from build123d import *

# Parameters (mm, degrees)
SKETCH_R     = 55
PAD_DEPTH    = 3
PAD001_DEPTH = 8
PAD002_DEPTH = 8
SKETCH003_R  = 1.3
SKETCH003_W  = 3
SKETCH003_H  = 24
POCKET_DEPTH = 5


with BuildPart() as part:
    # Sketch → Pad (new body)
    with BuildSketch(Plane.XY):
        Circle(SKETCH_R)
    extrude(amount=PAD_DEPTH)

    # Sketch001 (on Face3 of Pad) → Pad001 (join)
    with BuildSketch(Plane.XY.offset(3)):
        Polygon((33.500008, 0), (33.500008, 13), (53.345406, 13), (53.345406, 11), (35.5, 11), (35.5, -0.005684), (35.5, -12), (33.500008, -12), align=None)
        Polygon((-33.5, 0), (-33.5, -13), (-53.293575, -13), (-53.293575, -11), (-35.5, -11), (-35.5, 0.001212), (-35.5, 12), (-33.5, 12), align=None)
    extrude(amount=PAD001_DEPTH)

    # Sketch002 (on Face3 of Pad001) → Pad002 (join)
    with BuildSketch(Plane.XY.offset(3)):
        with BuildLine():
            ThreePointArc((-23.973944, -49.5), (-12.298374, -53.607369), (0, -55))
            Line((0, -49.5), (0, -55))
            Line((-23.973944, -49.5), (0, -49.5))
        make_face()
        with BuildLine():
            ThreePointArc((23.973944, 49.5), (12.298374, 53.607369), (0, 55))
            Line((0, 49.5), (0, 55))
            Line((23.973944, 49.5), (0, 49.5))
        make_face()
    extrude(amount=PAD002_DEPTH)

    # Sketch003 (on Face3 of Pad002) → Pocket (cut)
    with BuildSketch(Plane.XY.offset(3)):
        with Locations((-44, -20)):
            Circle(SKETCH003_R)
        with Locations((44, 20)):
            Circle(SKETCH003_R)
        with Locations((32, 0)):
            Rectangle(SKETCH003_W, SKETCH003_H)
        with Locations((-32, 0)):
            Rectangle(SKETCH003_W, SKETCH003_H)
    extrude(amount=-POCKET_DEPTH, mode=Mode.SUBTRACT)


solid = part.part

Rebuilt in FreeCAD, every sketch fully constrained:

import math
import FreeCAD as App
import Part
import Sketcher


def add_polygon(sketch, points):
    """Adds a closed chain of lines whose ends are joined by coincident constraints."""
    first, n = sketch.GeometryCount, len(points)
    for a, b in zip(points, points[1:] + points[:1]):
        sketch.addGeometry(Part.LineSegment(App.Vector(*a, 0), App.Vector(*b, 0)), False)
    for i in range(n):
        sketch.addConstraint(Sketcher.Constraint("Coincident", first + i, 2, first + (i + 1) % n, 1))

doc = App.newDocument("Part")
body = doc.addObject("PartDesign::Body", "Body")

sketch1 = doc.addObject("Sketcher::SketchObject", "Sketch")
body.addObject(sketch1)
sketch1.AttachmentSupport = (doc.XY_Plane, [""])
sketch1.MapMode = "FlatFace"
sketch1.addGeometry(Part.Circle(App.Vector(0, 0, 0), App.Vector(0, 0, 1), 55), False)
sketch1.addConstraint([
    Sketcher.Constraint("Coincident", 0, 3, -1, 1),
    Sketcher.Constraint("Diameter", 0, 110.0),
])
pad1 = doc.addObject("PartDesign::Pad", "Pad")
body.addObject(pad1)
pad1.Profile = sketch1
pad1.Length = 3

sketch2 = doc.addObject("Sketcher::SketchObject", "Sketch001")
body.addObject(sketch2)
sketch2.AttachmentSupport = (doc.XY_Plane, [""])
sketch2.MapMode = "FlatFace"
sketch2.AttachmentOffset = App.Placement(App.Vector(0, 0, 3), App.Rotation())
add_polygon(sketch2, [(33.500008, 13), (33.500008, -12), (35.5, -12), (35.5, 11), (53.345406, 11), (53.345406, 13)])
add_polygon(sketch2, [(-33.5, -13), (-33.5, 12), (-35.5, 12), (-35.5, -11), (-53.293575, -11), (-53.293575, -13)])
sketch2.addConstraint([
    Sketcher.Constraint("Vertical", 0),
    Sketcher.Constraint("Horizontal", 1),
    Sketcher.Constraint("Vertical", 2),
    Sketcher.Constraint("Horizontal", 3),
    Sketcher.Constraint("Vertical", 4),
    Sketcher.Constraint("Horizontal", 5),
    Sketcher.Constraint("Vertical", 6),
    Sketcher.Constraint("Horizontal", 7),
    Sketcher.Constraint("Vertical", 8),
    Sketcher.Constraint("Horizontal", 9),
    Sketcher.Constraint("Vertical", 10),
    Sketcher.Constraint("Horizontal", 11),
    Sketcher.Constraint("Symmetric", 0, 2, 6, 2, -1, 1),
    Sketcher.Constraint("Symmetric", 2, 2, 8, 2, -1, 1),
    Sketcher.Constraint("Equal", 7, 4),
    Sketcher.Constraint("Equal", 0, 6),
    Sketcher.Constraint("DistanceX", 7, 2, 7, 1, 2.0),
    Sketcher.Constraint("DistanceY", 0, 2, 0, 1, 25.0),
    Sketcher.Constraint("DistanceY", 0, 2, -1, 1, 12.0),
    Sketcher.Constraint("DistanceX", 6, 2, 2, 2, 69.0),
    Sketcher.Constraint("DistanceX", 3, 1, 3, 2, 17.845406),
    Sketcher.Constraint("DistanceX", 9, 2, 9, 1, 17.793575),
])
pad2 = doc.addObject("PartDesign::Pad", "Pad001")
body.addObject(pad2)
pad2.Profile = sketch2
pad2.Length = 8

sketch3 = doc.addObject("Sketcher::SketchObject", "Sketch002")
body.addObject(sketch3)
sketch3.AttachmentSupport = (doc.XY_Plane, [""])
sketch3.MapMode = "FlatFace"
sketch3.AttachmentOffset = App.Placement(App.Vector(0, 0, 3), App.Rotation())
sketch3.addGeometry([
    Part.ArcOfCircle(Part.Circle(App.Vector(-0.000001, -0.000007, 0), App.Vector(0, 0, 1), 54.999993), math.radians(-115.841934), math.radians(-89.999999)),
    Part.LineSegment(App.Vector(0, -55, 0), App.Vector(0, -49.5, 0)),
    Part.LineSegment(App.Vector(0, -49.5, 0), App.Vector(-23.973944, -49.5, 0)),
    Part.ArcOfCircle(Part.Circle(App.Vector(0.000001, 0.000007, 0), App.Vector(0, 0, 1), 54.999993), math.radians(64.158066), math.radians(90.000001)),
    Part.LineSegment(App.Vector(0, 55, 0), App.Vector(0, 49.5, 0)),
    Part.LineSegment(App.Vector(0, 49.5, 0), App.Vector(23.973944, 49.5, 0)),
], False)
sketch3.addConstraint([
    Sketcher.Constraint("Coincident", 0, 2, 1, 1),
    Sketcher.Constraint("Coincident", 1, 2, 2, 1),
    Sketcher.Constraint("Coincident", 2, 2, 0, 1),
    Sketcher.Constraint("Coincident", 3, 2, 4, 1),
    Sketcher.Constraint("Coincident", 4, 2, 5, 1),
    Sketcher.Constraint("Coincident", 5, 2, 3, 1),
    Sketcher.Constraint("Vertical", 1),
    Sketcher.Constraint("Horizontal", 2),
    Sketcher.Constraint("Vertical", 4),
    Sketcher.Constraint("Horizontal", 5),
    Sketcher.Constraint("Coincident", 0, 3, -1, 1),
    Sketcher.Constraint("Coincident", 3, 3, -1, 1),
    Sketcher.Constraint("Equal", 0, 3),
    Sketcher.Constraint("Symmetric", 1, 2, 4, 2, -1, 1),
    Sketcher.Constraint("PointOnObject", 0, 2, -2),
    Sketcher.Constraint("DistanceY", 1, 1, 1, 2, 5.5),
    Sketcher.Constraint("DistanceY", 0, 2, -1, 1, 55.0),
])
pad3 = doc.addObject("PartDesign::Pad", "Pad002")
body.addObject(pad3)
pad3.Profile = sketch3
pad3.Length = 8

sketch4 = doc.addObject("Sketcher::SketchObject", "Sketch003")
body.addObject(sketch4)
sketch4.AttachmentSupport = (doc.XY_Plane, [""])
sketch4.MapMode = "FlatFace"
sketch4.AttachmentOffset = App.Placement(App.Vector(0, 0, 3), App.Rotation())
sketch4.addGeometry(Part.Circle(App.Vector(-44, -20, 0), App.Vector(0, 0, 1), 1.3), False)
sketch4.addGeometry(Part.Circle(App.Vector(44, 20, 0), App.Vector(0, 0, 1), 1.3), False)
add_polygon(sketch4, [(30.5, 12), (30.5, -12), (33.5, -12), (33.5, 12)])
add_polygon(sketch4, [(-33.5, 12), (-33.5, -12), (-30.5, -12), (-30.5, 12)])
sketch4.addConstraint([
    Sketcher.Constraint("Vertical", 2),
    Sketcher.Constraint("Horizontal", 3),
    Sketcher.Constraint("Vertical", 4),
    Sketcher.Constraint("Horizontal", 5),
    Sketcher.Constraint("Vertical", 6),
    Sketcher.Constraint("Horizontal", 7),
    Sketcher.Constraint("Vertical", 8),
    Sketcher.Constraint("Horizontal", 9),
    Sketcher.Constraint("Equal", 0, 1),
    Sketcher.Constraint("Symmetric", 0, 3, 1, 3, -1, 1),
    Sketcher.Constraint("Symmetric", 4, 2, 6, 2, -1, 1),
    Sketcher.Constraint("Symmetric", 2, 2, 8, 2, -1, 1),
    Sketcher.Constraint("Horizontal", 3, 2, 6, 2),
    Sketcher.Constraint("Diameter", 0, 2.6),
    Sketcher.Constraint("DistanceX", 3, 1, 3, 2, 3.0),
    Sketcher.Constraint("DistanceY", 2, 2, 2, 1, 24.0),
    Sketcher.Constraint("DistanceX", 0, 3, -1, 1, 44.0),
    Sketcher.Constraint("DistanceY", 0, 3, -1, 1, 20.0),
    Sketcher.Constraint("DistanceX", 6, 2, 2, 2, 64.0),
])
pocket1 = doc.addObject("PartDesign::Pocket", "Pocket")
body.addObject(pocket1)
pocket1.Profile = sketch4
pocket1.Length = 5

doc.recompute()
